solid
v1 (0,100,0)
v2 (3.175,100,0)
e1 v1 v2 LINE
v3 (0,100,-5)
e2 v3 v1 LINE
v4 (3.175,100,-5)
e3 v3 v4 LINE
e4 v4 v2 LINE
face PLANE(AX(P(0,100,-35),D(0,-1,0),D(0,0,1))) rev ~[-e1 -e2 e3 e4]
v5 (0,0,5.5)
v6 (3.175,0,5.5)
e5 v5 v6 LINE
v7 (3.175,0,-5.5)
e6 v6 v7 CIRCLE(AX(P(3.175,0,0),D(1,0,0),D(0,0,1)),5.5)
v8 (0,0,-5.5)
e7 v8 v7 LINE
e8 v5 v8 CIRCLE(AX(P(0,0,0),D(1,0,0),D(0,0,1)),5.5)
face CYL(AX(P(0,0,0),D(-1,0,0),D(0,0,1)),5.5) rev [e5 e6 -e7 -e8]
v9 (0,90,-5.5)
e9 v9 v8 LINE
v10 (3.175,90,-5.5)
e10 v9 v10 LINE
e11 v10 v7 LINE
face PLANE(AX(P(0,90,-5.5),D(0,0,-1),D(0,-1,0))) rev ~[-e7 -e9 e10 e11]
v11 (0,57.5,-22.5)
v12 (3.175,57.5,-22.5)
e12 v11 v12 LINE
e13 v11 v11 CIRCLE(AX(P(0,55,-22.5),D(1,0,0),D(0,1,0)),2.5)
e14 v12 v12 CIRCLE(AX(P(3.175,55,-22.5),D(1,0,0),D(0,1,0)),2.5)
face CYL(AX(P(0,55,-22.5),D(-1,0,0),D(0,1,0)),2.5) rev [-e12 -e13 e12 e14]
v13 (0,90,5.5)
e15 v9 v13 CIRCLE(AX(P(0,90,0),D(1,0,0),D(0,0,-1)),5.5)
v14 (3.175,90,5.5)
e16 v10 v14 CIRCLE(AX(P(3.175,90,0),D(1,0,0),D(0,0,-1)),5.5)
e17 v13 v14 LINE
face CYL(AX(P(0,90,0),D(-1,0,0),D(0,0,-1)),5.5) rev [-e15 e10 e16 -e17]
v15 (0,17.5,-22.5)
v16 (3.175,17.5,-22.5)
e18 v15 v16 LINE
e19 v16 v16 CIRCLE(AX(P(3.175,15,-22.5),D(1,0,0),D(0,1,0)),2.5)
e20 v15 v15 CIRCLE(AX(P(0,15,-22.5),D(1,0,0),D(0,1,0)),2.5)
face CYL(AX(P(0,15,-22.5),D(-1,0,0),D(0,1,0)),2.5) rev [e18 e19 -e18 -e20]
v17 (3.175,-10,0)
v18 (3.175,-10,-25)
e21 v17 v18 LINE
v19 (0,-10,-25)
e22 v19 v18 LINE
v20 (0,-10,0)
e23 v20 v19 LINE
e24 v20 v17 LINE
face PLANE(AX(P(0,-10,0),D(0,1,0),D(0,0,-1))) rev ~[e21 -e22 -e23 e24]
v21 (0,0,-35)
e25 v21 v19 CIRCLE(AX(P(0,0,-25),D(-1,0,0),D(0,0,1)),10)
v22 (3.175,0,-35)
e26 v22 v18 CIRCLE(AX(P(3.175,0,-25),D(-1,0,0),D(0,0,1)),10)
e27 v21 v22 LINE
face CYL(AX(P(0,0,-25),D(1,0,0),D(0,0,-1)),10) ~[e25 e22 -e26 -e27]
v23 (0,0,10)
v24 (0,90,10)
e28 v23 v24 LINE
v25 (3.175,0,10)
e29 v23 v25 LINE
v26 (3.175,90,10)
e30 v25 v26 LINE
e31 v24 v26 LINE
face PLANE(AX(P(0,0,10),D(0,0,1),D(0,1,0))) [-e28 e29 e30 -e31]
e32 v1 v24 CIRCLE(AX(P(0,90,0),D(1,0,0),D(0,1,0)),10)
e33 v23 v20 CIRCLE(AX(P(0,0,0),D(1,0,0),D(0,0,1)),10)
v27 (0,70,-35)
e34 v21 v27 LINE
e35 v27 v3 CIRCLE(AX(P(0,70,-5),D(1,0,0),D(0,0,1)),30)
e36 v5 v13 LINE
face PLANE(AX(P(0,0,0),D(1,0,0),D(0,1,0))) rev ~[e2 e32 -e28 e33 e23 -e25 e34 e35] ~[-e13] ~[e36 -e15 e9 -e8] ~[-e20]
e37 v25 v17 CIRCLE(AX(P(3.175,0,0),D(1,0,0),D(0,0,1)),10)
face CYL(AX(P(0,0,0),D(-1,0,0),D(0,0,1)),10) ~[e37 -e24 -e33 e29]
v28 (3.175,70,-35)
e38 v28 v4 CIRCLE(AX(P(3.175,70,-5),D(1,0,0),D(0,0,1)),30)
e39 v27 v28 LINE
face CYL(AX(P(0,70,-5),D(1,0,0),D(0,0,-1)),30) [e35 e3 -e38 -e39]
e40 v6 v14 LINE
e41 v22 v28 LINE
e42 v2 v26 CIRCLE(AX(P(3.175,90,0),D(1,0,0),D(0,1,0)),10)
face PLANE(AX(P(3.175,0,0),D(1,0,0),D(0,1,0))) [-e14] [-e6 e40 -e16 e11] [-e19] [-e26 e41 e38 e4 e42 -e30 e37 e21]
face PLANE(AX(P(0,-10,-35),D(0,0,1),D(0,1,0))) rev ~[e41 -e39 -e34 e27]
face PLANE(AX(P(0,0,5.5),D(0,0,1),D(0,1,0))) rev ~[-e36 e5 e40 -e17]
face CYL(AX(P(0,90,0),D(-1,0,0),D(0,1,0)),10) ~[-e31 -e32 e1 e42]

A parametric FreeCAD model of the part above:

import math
import FreeCAD as App
import Part
import Sketcher
from FreeCAD import Vector


def edges_at(feature, points):
    """Names of the edges that pass closest to the given points."""
    edges = feature.Shape.Edges
    near = lambda p: min(range(len(edges)), key=lambda i: edges[i].distToShape(Part.Vertex(*p))[0])
    return sorted({f"Edge{near(p) + 1}" for p in points})

doc = App.newDocument("Part")
body = doc.addObject("PartDesign::Body", "Body")

# Sketch on YZ plane
sketch1 = doc.addObject("Sketcher::SketchObject", "Sketch")
body.addObject(sketch1)
sketch1.AttachmentSupport = (doc.YZ_Plane, [""])
sketch1.MapMode = "FlatFace"
sketch1.addGeometry([
    Part.ArcOfCircle(Part.Circle(Vector(0, 0, 0), Vector(0, 0, 1), 10), math.radians(90), math.radians(180)),  # 0
    Part.LineSegment(Vector(-10, 0, 0), Vector(-10, -35, 0)),  # 1
    Part.LineSegment(Vector(-10, -35, 0), Vector(100, -35, 0)),  # 2
    Part.LineSegment(Vector(100, -35, 0), Vector(100, 0, 0)),  # 3
    Part.ArcOfCircle(Part.Circle(Vector(90, 0, 0), Vector(0, 0, 1), 10), math.radians(0), math.radians(90)),  # 4
    Part.LineSegment(Vector(90, 10, 0), Vector(0, 10, 0)),  # 5
    Part.Circle(Vector(15, -22.5, 0), Vector(0, 0, 1), 2.5),  # 6
    Part.Circle(Vector(55, -22.5, 0), Vector(0, 0, 1), 2.5),  # 7
    Part.ArcOfCircle(Part.Circle(Vector(0, 0, 0), Vector(0, 0, 1), 5.5), math.radians(90), math.radians(270)),  # 8
    Part.LineSegment(Vector(0, 5.5, 0), Vector(90, 5.5, 0)),  # 9
    Part.ArcOfCircle(Part.Circle(Vector(90, 0, 0), Vector(0, 0, 1), 5.5), math.radians(-90), math.radians(90)),  # 10
    Part.LineSegment(Vector(90, -5.5, 0), Vector(0, -5.5, 0)),  # 11
], False)
sketch1.addConstraint([
    Sketcher.Constraint("Tangent", 0, 2, 1, 1),
    Sketcher.Constraint("Coincident", 1, 2, 2, 1),
    Sketcher.Constraint("Coincident", 2, 2, 3, 1),
    Sketcher.Constraint("Tangent", 3, 2, 4, 1),
    Sketcher.Constraint("Tangent", 4, 2, 5, 1),
    Sketcher.Constraint("Tangent", 5, 2, 0, 1),
    Sketcher.Constraint("Tangent", 8, 1, 9, 1),
    Sketcher.Constraint("Tangent", 9, 2, 10, 2),
    Sketcher.Constraint("Tangent", 10, 1, 11, 1),
    Sketcher.Constraint("Tangent", 11, 2, 8, 2),
    Sketcher.Constraint("Vertical", 1),
    Sketcher.Constraint("Horizontal", 2),
    Sketcher.Constraint("Vertical", 3),
    Sketcher.Constraint("Horizontal", 5),
    Sketcher.Constraint("Horizontal", 9),
    Sketcher.Constraint("Horizontal", 11),
    Sketcher.Constraint("Coincident", 0, 3, -1, 1),
    Sketcher.Constraint("Coincident", 8, 3, -1, 1),
    Sketcher.Constraint("Coincident", 10, 3, 4, 3),
    Sketcher.Constraint("Equal", 6, 7),
    Sketcher.Constraint("Horizontal", 6, 3, 7, 3),
    Sketcher.Constraint("Diameter", 6, 5.0),
    Sketcher.Constraint("Radius", 0, 10.0),
    Sketcher.Constraint("Radius", 8, 5.5),
    Sketcher.Constraint("DistanceX", 5, 2, 5, 1, 90.0),
    Sketcher.Constraint("DistanceY", 1, 2, 1, 1, 35.0),
    Sketcher.Constraint("DistanceX", 7, 3, 4, 3, 35.0),
    Sketcher.Constraint("DistanceY", 1, 2, 6, 3, 12.5),
    Sketcher.Constraint("DistanceX", -1, 1, 6, 3, 15.0),
])
pad1 = doc.addObject("PartDesign::Pad", "Pad")
body.addObject(pad1)
pad1.Profile = sketch1
pad1.Length = 3.175
doc.recompute()

fillet = doc.addObject("PartDesign::Fillet", "Fillet")
body.addObject(fillet)
fillet.Base = (pad1, edges_at(pad1, [(1.587, -10, -35)]))
fillet.Radius = 10
doc.recompute()

fillet2 = doc.addObject("PartDesign::Fillet", "Fillet001")
body.addObject(fillet2)
fillet2.Base = (fillet, edges_at(fillet, [(1.587, 100, -35)]))
fillet2.Radius = 30

doc.recompute()
